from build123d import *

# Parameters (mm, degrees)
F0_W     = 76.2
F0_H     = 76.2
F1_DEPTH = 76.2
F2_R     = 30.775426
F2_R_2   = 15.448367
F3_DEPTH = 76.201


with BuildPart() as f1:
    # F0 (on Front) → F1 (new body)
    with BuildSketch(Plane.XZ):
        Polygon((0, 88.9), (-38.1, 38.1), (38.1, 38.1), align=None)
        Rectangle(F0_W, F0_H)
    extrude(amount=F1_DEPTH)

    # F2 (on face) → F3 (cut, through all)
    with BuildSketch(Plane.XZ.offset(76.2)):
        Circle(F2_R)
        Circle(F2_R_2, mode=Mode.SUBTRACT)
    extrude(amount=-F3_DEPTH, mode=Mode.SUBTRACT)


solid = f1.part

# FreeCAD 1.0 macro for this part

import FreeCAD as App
import Part
import Sketcher

V = App.Vector
Q = App.Units.Quantity


def add_polygon(sketch, points):
    """Adds a closed chain of lines whose ends are joined by coincident constraints."""
    first, n = sketch.GeometryCount, len(points)
    for a, b in zip(points, points[1:] + points[:1]):
        sketch.addGeometry(Part.LineSegment(App.Vector(*a, 0), App.Vector(*b, 0)), False)
    for i in range(n):
        sketch.addConstraint(Sketcher.Constraint("Coincident", first + i, 2, first + (i + 1) % n, 1))

doc = App.newDocument("Part")
body = doc.addObject("PartDesign::Body", "Body")
body.AllowCompound = True

# Sketch on XZ plane
sketch1 = doc.addObject("Sketcher::SketchObject", "Sketch")
body.addObject(sketch1)
sketch1.AttachmentSupport = (doc.XZ_Plane, [""])
sketch1.MapMode = "FlatFace"
add_polygon(sketch1, [(0, 89), (-38, 38), (-38, -38), (38, -38), (38, 38)])  # lines 0-4
sketch1.addConstraint(Sketcher.Constraint("Vertical", 1))
sketch1.addConstraint(Sketcher.Constraint("Horizontal", 2))
sketch1.addConstraint(Sketcher.Constraint("Vertical", 3))
sketch1.addConstraint(Sketcher.Constraint("Symmetric", 0, 2, 2, 2, -1, 1))
sketch1.addConstraint(Sketcher.Constraint("PointOnObject", 4, 2, -2))
sketch1.addConstraint(Sketcher.Constraint("Horizontal", 0, 2, 3, 2))
sketch1.addConstraint(Sketcher.Constraint("Equal", 2, 1))
sketch1.addConstraint(Sketcher.Constraint("DistanceX", 2, 1, 2, 2, Q("3 in")))
sketch1.addConstraint(Sketcher.Constraint("DistanceY", 0, 2, 4, 2, Q("2 in")))
pad1 = doc.addObject("PartDesign::Pad", "Pad")
body.addObject(pad1)
pad1.Profile = sketch1
pad1.Length = Q("3 in")

# Sketch on XZ plane
sketch2 = doc.addObject("Sketcher::SketchObject", "Sketch001")
body.addObject(sketch2)
sketch2.AttachmentSupport = (doc.XZ_Plane, [""])
sketch2.MapMode = "FlatFace"
sketch2.AttachmentOffset = App.Placement(V(0, 0, 3 * 25.4), App.Rotation())
sketch2.addGeometry(Part.Circle(V(0, 0, 0), V(0, 0, 1), 31), False)
sketch2.addGeometry(Part.Circle(V(0, 0, 0), V(0, 0, 1), 15), False)
sketch2.addConstraint(Sketcher.Constraint("Coincident", 0, 3, -1, 1))
sketch2.addConstraint(Sketcher.Constraint("Coincident", 1, 3, -1, 1))
sketch2.addConstraint(Sketcher.Constraint("Diameter", 0, Q("61.550852 mm")))
sketch2.addConstraint(Sketcher.Constraint("Diameter", 1, Q("30.896734 mm")))
pocket1 = doc.addObject("PartDesign::Pocket", "Pocket")
body.addObject(pocket1)
pocket1.Profile = sketch2
pocket1.Type = "ThroughAll"

doc.recompute()
